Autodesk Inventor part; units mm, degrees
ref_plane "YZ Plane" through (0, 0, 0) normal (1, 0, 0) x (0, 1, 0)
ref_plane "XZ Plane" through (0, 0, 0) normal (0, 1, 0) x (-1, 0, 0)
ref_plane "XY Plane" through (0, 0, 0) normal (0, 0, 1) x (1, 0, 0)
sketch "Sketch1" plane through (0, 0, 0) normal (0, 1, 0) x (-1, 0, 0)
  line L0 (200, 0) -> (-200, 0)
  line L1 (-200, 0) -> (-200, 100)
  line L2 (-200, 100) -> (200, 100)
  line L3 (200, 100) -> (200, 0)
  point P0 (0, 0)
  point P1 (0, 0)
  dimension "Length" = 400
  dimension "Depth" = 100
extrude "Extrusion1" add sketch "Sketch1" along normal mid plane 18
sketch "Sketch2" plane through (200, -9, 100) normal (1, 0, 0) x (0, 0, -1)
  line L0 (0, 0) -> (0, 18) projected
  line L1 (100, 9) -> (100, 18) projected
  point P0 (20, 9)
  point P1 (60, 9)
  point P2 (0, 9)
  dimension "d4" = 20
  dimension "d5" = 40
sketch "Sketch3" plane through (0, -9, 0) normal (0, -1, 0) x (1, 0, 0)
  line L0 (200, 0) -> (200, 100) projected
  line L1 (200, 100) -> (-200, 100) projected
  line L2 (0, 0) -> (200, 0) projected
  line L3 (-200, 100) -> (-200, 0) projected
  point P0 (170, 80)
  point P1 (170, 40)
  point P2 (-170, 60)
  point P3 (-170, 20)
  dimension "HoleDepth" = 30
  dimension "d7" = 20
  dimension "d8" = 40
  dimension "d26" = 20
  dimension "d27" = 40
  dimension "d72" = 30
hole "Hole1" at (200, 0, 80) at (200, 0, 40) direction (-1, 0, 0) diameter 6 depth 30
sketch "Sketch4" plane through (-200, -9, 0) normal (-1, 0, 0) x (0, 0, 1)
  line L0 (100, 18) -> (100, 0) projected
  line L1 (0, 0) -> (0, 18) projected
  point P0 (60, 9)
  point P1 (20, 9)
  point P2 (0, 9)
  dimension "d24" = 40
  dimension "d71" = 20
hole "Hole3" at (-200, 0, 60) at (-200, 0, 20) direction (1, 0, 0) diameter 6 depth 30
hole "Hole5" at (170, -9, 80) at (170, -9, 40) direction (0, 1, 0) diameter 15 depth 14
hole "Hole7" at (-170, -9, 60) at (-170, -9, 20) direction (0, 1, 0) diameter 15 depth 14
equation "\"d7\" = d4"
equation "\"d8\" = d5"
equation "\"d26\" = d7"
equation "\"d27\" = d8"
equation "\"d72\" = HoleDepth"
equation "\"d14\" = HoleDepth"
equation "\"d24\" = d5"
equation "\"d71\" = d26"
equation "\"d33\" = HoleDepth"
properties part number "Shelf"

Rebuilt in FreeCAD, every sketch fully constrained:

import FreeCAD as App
import Part
import Sketcher
Q = App.Units.Quantity

doc = App.newDocument("Part")
body = doc.addObject("PartDesign::Body", "Body")

# Sketch on XZ plane
sketch1 = body.newObject("Sketcher::SketchObject", "Sketch")
sketch1.AttachmentSupport = (doc.getObject("XZ_Plane"), [""])
sketch1.MapMode = "FlatFace"
sketch1.addGeometry([
    Part.LineSegment(App.Vector(200, 0, 0), App.Vector(-200, 0, 0)),
    Part.LineSegment(App.Vector(-200, 0, 0), App.Vector(-200, 100, 0)),
    Part.LineSegment(App.Vector(-200, 100, 0), App.Vector(200, 100, 0)),
    Part.LineSegment(App.Vector(200, 100, 0), App.Vector(200, 0, 0)),
], False)
sketch1.addConstraint([
    Sketcher.Constraint("Coincident", 0, 2, 1, 1),
    Sketcher.Constraint("Coincident", 1, 2, 2, 1),
    Sketcher.Constraint("Coincident", 2, 2, 3, 1),
    Sketcher.Constraint("Coincident", 3, 2, 0, 1),
    Sketcher.Constraint("Horizontal", 0),
    Sketcher.Constraint("Vertical", 1),
    Sketcher.Constraint("Horizontal", 2),
    Sketcher.Constraint("Vertical", 3),
    Sketcher.Constraint("Symmetric", 0, 2, 3, 2, -1, 1),
    Sketcher.Constraint("DistanceX", 0, 2, 0, 1, Q("400 mm")),
    Sketcher.Constraint("DistanceY", 1, 1, 1, 2, Q("100 mm")),
])
pad1 = body.newObject("PartDesign::Pad", "Pad")
pad1.Profile = sketch1
pad1.Length = 18
pad1.Midplane = True

# Sketch on YZ plane
sketch2 = body.newObject("Sketcher::SketchObject", "Sketch001")
sketch2.AttachmentSupport = (doc.getObject("YZ_Plane"), [""])
sketch2.MapMode = "FlatFace"
sketch2.AttachmentOffset = App.Placement(App.Vector(0, 0, 200), App.Rotation())
sketch2.addGeometry([
    Part.Circle(App.Vector(0, 80, 0), App.Vector(0, 0, 1), 3),
    Part.Circle(App.Vector(0, 40, 0), App.Vector(0, 0, 1), 3),
], False)
sketch2.addConstraint([
    Sketcher.Constraint("Equal", 0, 1),
    Sketcher.Constraint("PointOnObject", 0, 3, -2),
    Sketcher.Constraint("PointOnObject", 1, 3, -2),
    Sketcher.Constraint("Diameter", 0, Q("6 mm")),
    Sketcher.Constraint("DistanceY", -1, 1, 0, 3, Q("80 mm")),
    Sketcher.Constraint("DistanceY", -1, 1, 1, 3, Q("40 mm")),
])
doc.recompute()
hole = body.newObject("PartDesign::Hole", "Hole")
hole.Profile = sketch2
hole.ThreadType = "None"
hole.Diameter = 6
hole.DepthType = "Dimension"
hole.Depth = 30
hole.DrillPoint = "Flat"

# Sketch on YZ plane
sketch3 = body.newObject("Sketcher::SketchObject", "Sketch002")
sketch3.AttachmentSupport = (doc.getObject("YZ_Plane"), [""])
sketch3.MapMode = "FlatFace"
sketch3.AttachmentOffset = App.Placement(App.Vector(0, 0, -200), App.Rotation())
sketch3.addGeometry([
    Part.Circle(App.Vector(0, 60, 0), App.Vector(0, 0, 1), 3),
    Part.Circle(App.Vector(0, 20, 0), App.Vector(0, 0, 1), 3),
], False)
sketch3.addConstraint([
    Sketcher.Constraint("Equal", 0, 1),
    Sketcher.Constraint("PointOnObject", 0, 3, -2),
    Sketcher.Constraint("PointOnObject", 1, 3, -2),
    Sketcher.Constraint("Diameter", 0, Q("6 mm")),
    Sketcher.Constraint("DistanceY", -1, 1, 0, 3, Q("60 mm")),
    Sketcher.Constraint("DistanceY", -1, 1, 1, 3, Q("20 mm")),
])
doc.recompute()
hole2 = body.newObject("PartDesign::Hole", "Hole001")
hole2.Profile = sketch3
hole2.ThreadType = "None"
hole2.Diameter = 6
hole2.DepthType = "Dimension"
hole2.Depth = 30
hole2.DrillPoint = "Flat"
hole2.Reversed = True

# Sketch on XZ plane
sketch4 = body.newObject("Sketcher::SketchObject", "Sketch003")
sketch4.AttachmentSupport = (doc.getObject("XZ_Plane"), [""])
sketch4.MapMode = "FlatFace"
sketch4.AttachmentOffset = App.Placement(App.Vector(0, 0, 9), App.Rotation())
sketch4.addGeometry([
    Part.Circle(App.Vector(170, 80, 0), App.Vector(0, 0, 1), 8),
    Part.Circle(App.Vector(170, 40, 0), App.Vector(0, 0, 1), 8),
], False)
sketch4.addConstraint([
    Sketcher.Constraint("Equal", 0, 1),
    Sketcher.Constraint("Vertical", 0, 3, 1, 3),
    Sketcher.Constraint("Diameter", 0, Q("15 mm")),
    Sketcher.Constraint("DistanceX", -1, 1, 0, 3, Q("170 mm")),
    Sketcher.Constraint("DistanceY", -1, 1, 0, 3, Q("80 mm")),
    Sketcher.Constraint("DistanceY", -1, 1, 1, 3, Q("40 mm")),
])
doc.recompute()
hole3 = body.newObject("PartDesign::Hole", "Hole002")
hole3.Profile = sketch4
hole3.ThreadType = "None"
hole3.Diameter = 15
hole3.DepthType = "Dimension"
hole3.Depth = 14
hole3.DrillPoint = "Flat"

# Sketch on XZ plane
sketch5 = body.newObject("Sketcher::SketchObject", "Sketch004")
sketch5.AttachmentSupport = (doc.getObject("XZ_Plane"), [""])
sketch5.MapMode = "FlatFace"
sketch5.AttachmentOffset = App.Placement(App.Vector(0, 0, 9), App.Rotation())
sketch5.addGeometry([
    Part.Circle(App.Vector(-170, 60, 0), App.Vector(0, 0, 1), 8),
    Part.Circle(App.Vector(-170, 20, 0), App.Vector(0, 0, 1), 8),
], False)
sketch5.addConstraint([
    Sketcher.Constraint("Equal", 0, 1),
    Sketcher.Constraint("Vertical", 0, 3, 1, 3),
    Sketcher.Constraint("Diameter", 0, Q("15 mm")),
    Sketcher.Constraint("DistanceX", 0, 3, -1, 1, Q("170 mm")),
    Sketcher.Constraint("DistanceY", -1, 1, 0, 3, Q("60 mm")),
    Sketcher.Constraint("DistanceY", -1, 1, 1, 3, Q("20 mm")),
])
doc.recompute()
hole4 = body.newObject("PartDesign::Hole", "Hole003")
hole4.Profile = sketch5
hole4.ThreadType = "None"
hole4.Diameter = 15
hole4.DepthType = "Dimension"
hole4.Depth = 14
hole4.DrillPoint = "Flat"

doc.recompute()
